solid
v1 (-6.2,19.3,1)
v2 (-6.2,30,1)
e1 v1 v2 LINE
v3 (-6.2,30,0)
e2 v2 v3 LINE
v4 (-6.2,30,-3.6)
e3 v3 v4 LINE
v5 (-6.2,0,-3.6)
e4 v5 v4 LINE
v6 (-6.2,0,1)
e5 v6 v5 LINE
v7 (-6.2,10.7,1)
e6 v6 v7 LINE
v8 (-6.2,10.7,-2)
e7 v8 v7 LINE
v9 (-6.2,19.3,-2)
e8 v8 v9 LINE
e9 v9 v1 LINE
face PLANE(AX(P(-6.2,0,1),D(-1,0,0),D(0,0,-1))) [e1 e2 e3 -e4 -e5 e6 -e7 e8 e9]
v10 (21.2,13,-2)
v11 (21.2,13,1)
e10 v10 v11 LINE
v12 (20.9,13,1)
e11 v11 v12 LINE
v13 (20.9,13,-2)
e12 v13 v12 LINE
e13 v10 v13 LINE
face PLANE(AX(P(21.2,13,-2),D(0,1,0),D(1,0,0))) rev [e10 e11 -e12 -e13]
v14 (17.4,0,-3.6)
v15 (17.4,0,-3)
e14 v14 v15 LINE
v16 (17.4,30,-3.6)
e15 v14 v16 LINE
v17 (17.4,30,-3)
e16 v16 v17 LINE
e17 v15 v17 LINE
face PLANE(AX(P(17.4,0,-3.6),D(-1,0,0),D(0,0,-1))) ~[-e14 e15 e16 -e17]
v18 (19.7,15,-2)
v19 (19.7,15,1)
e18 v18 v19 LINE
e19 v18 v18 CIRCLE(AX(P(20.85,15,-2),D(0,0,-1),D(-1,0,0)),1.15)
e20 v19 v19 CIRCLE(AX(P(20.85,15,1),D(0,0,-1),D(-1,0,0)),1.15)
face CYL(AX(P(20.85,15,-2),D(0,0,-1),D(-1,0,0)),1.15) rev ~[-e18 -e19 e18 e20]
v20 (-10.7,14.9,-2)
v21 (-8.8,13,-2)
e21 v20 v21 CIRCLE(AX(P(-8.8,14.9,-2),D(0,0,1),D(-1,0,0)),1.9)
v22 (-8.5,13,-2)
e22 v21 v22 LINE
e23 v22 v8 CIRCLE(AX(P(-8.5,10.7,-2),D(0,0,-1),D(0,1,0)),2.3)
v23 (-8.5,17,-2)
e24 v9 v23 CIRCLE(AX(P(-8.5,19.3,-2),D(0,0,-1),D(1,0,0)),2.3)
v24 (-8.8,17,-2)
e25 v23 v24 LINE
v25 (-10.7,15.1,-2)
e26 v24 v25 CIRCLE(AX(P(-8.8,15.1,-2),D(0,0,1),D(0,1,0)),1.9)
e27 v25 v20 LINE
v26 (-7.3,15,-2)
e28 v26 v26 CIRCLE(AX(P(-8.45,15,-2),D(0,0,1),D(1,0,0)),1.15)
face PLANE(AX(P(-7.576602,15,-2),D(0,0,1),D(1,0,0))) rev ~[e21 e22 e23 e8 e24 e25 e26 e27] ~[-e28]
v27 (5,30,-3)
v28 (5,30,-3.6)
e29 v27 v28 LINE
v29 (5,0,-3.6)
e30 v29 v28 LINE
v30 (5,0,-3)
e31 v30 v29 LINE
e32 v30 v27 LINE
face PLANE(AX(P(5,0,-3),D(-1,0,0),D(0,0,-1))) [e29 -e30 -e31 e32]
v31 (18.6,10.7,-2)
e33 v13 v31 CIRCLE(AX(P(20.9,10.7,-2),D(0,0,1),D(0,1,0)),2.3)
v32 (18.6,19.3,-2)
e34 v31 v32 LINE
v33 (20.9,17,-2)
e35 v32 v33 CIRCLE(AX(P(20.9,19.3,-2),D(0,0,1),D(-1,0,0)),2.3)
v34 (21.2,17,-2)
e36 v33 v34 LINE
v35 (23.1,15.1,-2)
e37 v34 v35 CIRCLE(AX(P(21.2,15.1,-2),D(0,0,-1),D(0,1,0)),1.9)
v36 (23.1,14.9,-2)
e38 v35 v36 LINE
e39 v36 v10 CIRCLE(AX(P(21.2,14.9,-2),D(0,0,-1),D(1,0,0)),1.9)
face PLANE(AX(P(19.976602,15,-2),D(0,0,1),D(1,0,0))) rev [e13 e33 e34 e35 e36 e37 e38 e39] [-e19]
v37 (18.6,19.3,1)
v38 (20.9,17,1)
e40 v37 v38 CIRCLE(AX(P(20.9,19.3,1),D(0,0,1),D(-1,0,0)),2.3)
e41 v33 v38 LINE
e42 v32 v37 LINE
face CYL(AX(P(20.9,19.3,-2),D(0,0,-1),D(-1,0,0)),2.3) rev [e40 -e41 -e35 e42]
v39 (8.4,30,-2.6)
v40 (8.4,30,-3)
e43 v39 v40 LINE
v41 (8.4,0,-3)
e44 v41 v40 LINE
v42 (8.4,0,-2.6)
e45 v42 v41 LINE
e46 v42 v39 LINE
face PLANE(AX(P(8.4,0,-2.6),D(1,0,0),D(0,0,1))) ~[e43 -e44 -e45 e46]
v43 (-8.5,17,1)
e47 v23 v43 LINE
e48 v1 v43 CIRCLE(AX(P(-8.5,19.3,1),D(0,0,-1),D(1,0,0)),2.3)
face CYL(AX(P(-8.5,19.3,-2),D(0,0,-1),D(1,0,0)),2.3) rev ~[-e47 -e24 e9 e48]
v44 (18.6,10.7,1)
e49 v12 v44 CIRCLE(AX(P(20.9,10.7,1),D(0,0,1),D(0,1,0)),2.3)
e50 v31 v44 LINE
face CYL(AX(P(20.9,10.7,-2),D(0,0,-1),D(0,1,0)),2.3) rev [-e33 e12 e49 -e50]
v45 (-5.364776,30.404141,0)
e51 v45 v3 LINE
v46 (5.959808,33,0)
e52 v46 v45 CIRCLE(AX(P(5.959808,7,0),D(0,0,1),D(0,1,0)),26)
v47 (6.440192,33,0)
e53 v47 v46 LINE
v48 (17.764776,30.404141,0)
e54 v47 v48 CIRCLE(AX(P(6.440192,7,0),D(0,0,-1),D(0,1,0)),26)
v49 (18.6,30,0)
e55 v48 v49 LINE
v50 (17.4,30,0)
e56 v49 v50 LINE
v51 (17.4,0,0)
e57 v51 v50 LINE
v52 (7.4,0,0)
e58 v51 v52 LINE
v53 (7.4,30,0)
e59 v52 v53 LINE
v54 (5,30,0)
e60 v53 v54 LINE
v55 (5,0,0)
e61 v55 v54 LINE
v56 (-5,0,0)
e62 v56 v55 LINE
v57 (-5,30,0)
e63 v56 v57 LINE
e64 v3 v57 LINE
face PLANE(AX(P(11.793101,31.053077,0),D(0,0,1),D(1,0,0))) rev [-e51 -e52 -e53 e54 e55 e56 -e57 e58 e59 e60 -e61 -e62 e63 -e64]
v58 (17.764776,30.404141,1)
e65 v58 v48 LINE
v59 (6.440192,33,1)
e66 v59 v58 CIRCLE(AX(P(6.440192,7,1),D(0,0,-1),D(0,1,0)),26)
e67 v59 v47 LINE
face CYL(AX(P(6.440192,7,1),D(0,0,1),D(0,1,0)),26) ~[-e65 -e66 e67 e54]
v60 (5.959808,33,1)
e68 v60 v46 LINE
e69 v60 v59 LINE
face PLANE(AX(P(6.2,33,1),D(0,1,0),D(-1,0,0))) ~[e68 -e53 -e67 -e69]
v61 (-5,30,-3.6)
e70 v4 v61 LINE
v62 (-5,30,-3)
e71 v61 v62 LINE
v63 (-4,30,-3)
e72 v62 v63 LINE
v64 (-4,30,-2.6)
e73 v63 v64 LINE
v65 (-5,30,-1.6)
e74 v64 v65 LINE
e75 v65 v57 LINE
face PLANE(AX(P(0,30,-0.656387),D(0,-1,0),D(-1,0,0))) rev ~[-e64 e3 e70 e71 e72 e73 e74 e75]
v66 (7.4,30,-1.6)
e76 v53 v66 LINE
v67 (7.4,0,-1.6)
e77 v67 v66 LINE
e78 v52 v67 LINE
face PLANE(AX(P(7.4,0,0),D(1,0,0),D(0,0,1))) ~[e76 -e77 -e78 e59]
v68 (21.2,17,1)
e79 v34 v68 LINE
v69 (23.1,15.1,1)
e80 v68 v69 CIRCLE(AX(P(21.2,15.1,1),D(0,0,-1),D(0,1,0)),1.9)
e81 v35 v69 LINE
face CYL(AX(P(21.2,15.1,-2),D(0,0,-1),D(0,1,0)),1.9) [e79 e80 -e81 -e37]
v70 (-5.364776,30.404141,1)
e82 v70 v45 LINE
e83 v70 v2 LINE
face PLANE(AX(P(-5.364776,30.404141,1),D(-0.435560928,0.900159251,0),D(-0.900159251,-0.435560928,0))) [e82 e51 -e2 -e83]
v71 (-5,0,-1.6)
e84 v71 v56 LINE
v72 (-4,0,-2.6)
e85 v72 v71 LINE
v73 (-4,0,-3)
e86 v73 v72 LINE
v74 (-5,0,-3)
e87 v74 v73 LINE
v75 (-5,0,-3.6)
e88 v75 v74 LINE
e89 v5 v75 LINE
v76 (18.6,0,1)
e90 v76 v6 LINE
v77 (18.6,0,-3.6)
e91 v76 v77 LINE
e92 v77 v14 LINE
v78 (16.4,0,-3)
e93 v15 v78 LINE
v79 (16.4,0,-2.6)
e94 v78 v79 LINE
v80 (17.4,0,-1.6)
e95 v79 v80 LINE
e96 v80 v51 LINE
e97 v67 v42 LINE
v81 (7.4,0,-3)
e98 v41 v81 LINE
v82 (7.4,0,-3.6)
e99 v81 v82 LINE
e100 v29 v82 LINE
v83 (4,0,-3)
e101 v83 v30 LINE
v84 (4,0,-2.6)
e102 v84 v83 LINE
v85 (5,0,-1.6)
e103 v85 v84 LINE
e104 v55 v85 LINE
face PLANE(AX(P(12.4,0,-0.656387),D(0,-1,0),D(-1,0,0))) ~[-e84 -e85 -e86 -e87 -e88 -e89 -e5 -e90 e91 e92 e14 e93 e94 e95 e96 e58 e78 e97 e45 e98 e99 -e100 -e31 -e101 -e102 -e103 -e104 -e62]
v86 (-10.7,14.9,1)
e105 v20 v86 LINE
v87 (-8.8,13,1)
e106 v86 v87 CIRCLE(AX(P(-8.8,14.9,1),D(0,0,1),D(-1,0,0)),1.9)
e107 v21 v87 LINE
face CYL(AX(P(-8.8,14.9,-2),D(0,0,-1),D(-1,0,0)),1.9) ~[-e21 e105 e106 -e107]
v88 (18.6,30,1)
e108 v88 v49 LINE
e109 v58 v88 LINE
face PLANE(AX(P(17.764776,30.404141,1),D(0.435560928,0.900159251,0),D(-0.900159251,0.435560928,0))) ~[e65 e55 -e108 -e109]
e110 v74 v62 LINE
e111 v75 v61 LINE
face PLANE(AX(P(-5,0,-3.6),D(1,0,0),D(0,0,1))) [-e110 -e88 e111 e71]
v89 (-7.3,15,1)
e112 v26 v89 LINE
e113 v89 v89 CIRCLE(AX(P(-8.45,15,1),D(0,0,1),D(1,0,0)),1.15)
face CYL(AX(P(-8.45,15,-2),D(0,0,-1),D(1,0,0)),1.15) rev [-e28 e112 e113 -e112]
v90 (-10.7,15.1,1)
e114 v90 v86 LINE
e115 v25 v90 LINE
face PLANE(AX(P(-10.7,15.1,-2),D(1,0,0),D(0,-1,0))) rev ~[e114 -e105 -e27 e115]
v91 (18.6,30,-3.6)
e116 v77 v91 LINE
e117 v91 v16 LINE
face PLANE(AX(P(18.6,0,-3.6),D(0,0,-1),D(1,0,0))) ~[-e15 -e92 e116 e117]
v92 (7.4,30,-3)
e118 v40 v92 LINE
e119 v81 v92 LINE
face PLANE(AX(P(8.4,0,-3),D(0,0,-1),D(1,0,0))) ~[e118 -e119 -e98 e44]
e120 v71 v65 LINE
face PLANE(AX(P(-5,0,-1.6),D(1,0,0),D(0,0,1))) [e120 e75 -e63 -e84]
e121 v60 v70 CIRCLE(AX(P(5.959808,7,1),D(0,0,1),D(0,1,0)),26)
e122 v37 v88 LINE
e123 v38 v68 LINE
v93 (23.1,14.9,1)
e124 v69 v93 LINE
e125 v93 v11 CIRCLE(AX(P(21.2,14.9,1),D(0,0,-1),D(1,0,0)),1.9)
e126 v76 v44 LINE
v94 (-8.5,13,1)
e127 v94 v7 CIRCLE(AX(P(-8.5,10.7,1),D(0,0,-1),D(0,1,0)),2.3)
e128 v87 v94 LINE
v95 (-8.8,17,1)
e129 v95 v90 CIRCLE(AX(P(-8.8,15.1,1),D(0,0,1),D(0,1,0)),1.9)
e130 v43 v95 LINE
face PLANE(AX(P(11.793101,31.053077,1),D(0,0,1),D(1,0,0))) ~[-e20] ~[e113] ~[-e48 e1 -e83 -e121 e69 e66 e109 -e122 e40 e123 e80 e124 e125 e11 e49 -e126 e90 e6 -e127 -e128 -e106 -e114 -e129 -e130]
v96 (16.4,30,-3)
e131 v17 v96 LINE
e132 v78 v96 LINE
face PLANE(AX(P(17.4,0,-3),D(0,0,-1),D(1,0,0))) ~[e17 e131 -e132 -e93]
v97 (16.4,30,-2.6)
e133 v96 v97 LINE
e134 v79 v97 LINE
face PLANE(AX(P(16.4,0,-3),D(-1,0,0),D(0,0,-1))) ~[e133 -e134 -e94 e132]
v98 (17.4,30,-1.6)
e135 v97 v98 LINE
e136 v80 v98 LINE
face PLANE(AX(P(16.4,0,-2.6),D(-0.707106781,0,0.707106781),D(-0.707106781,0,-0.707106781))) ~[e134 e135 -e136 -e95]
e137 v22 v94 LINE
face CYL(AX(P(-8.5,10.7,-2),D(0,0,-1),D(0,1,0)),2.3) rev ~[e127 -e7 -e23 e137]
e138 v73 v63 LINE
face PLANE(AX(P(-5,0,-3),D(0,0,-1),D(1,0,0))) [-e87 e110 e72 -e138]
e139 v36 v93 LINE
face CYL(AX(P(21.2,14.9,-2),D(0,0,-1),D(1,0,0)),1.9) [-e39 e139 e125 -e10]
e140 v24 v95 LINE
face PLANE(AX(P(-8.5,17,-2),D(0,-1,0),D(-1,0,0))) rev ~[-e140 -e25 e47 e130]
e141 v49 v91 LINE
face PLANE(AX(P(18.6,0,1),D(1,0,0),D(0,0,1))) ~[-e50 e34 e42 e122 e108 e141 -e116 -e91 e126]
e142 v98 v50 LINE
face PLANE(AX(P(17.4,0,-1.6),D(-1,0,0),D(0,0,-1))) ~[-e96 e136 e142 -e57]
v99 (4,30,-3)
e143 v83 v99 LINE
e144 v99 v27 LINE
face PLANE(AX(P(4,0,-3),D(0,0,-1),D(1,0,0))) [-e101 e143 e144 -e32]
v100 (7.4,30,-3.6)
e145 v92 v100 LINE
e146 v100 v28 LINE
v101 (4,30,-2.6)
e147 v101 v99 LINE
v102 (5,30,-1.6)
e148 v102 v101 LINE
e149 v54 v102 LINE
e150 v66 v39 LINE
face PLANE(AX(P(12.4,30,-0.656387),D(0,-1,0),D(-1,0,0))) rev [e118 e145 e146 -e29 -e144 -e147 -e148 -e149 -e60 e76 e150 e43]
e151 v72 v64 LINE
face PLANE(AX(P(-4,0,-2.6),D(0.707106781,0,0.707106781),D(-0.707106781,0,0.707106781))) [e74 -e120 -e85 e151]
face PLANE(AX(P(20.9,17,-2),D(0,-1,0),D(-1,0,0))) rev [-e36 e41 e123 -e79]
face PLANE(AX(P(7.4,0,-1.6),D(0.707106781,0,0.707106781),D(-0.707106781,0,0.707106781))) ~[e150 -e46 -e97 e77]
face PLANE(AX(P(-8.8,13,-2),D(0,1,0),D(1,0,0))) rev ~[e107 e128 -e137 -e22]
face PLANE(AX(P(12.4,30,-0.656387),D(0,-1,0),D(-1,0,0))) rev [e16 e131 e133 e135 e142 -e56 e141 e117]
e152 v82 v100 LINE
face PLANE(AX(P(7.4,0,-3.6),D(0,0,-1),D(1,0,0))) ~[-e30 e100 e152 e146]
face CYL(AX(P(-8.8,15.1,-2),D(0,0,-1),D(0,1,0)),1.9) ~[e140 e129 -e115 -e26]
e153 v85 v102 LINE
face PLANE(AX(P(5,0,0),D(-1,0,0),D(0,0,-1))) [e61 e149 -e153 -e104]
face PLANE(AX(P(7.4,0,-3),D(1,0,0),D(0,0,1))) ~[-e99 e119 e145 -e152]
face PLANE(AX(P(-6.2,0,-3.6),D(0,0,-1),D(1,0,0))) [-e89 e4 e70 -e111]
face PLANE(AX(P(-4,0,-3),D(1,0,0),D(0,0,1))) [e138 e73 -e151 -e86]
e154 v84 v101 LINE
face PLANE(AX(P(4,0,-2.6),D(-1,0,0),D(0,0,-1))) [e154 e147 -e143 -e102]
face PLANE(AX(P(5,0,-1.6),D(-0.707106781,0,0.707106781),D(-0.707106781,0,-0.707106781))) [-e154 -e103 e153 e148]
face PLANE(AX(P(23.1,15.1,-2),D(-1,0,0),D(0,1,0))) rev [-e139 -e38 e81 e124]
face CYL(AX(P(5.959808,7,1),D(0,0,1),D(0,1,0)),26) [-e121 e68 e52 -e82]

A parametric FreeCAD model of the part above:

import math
import FreeCAD as App
import Part
import Sketcher
from FreeCAD import Vector


def add_polygon(sketch, points):
    """Adds a closed chain of lines whose ends are joined by coincident constraints."""
    first, n = sketch.GeometryCount, len(points)
    for a, b in zip(points, points[1:] + points[:1]):
        sketch.addGeometry(Part.LineSegment(App.Vector(*a, 0), App.Vector(*b, 0)), False)
    for i in range(n):
        sketch.addConstraint(Sketcher.Constraint("Coincident", first + i, 2, first + (i + 1) % n, 1))

doc = App.newDocument("Part")
params = doc.addObject("Spreadsheet::Sheet", "Params")
for row, (alias, value) in enumerate([
    ("sketch1_width", "10 mm"),
    ("sketch1_width2", "1 mm"),
    ("sketch1_width3", "1.2 mm"),
    ("sketch1_height", "1.6 mm"),
    ("sketch1_height2", "0.4 mm"),
    ("pad1_length", "30 mm"),
    ("sketch2_diameter", "2.3 mm"),
    ("sketch2_radius", "2.3 mm"),
    ("sketch2_radius2", "1.9 mm"),
    ("sketch2_width", "0.3 mm"),
    ("sketch2_height", "8.6 mm"),
    ("pad2_length", "3 mm"),
    ("sketch3_radius", "26 mm"),
    ("sketch3_height", "3 mm"),
    ("sketch3_width", "12.4 mm"),
    ("pad3_length", "1 mm"),
], start=1):
    params.set(f"A{row}", alias)
    params.set(f"B{row}", "=" + value)
    params.setAlias(f"B{row}", alias)

body = doc.addObject("PartDesign::Body", "Body")

# Sketch on XZ plane
sketch1 = doc.addObject("Sketcher::SketchObject", "Sketch")
body.addObject(sketch1)
sketch1.AttachmentSupport = (doc.XZ_Plane, [""])
sketch1.MapMode = "FlatFace"
add_polygon(sketch1, [(5, 0), (-5, 0), (-5, -1.6), (-4, -2.6), (-4, -3), (-5, -3), (-5, -3.6), (-6.2, -3.6), (-6.2, 1), (6.2, 1), (6.2, -3.6), (5, -3.6), (5, -3), (4, -3), (4, -2.6), (5, -1.6)])  # lines 0-15
sketch1.addConstraint([
    Sketcher.Constraint("Horizontal", 0),
    Sketcher.Constraint("Vertical", 1),
    Sketcher.Constraint("Vertical", 3),
    Sketcher.Constraint("Horizontal", 4),
    Sketcher.Constraint("Vertical", 5),
    Sketcher.Constraint("Horizontal", 6),
    Sketcher.Constraint("Vertical", 7),
    Sketcher.Constraint("Horizontal", 8),
    Sketcher.Constraint("Vertical", 9),
    Sketcher.Constraint("Horizontal", 10),
    Sketcher.Constraint("Vertical", 11),
    Sketcher.Constraint("Horizontal", 12),
    Sketcher.Constraint("Vertical", 13),
    Sketcher.Constraint("Vertical", 15),
    Sketcher.Constraint("Symmetric", 0, 2, 15, 2, -1, 1),
    Sketcher.Constraint("Symmetric", 6, 2, 9, 2, -2),
    Sketcher.Constraint("Symmetric", 4, 2, 11, 2, -2),
    Sketcher.Constraint("Symmetric", 2, 2, 13, 2, -2),
    Sketcher.Constraint("Perpendicular", 2, 14),
    Sketcher.Constraint("Horizontal", 1, 2, 14, 2),
    Sketcher.Constraint("Vertical", 1, 2, 4, 2),
    Sketcher.Constraint("DistanceX", 0, 2, 0, 1, 10.0),
    Sketcher.Constraint("DistanceX", 4, 2, 4, 1, 1.0),
    Sketcher.Constraint("DistanceX", 6, 2, 6, 1, 1.2),
    Sketcher.Constraint("DistanceY", 1, 2, 1, 1, 1.6),
    Sketcher.Constraint("DistanceY", 3, 2, 3, 1, 0.4),
    Sketcher.Constraint("DistanceY", 5, 2, 5, 1, 0.6),
    Sketcher.Constraint("DistanceY", 7, 1, 7, 2, 4.6),
])
sketch1.setExpression("Constraints[37]", "Params.sketch1_width")
sketch1.setExpression("Constraints[38]", "Params.sketch1_width2")
sketch1.setExpression("Constraints[39]", "Params.sketch1_width3")
sketch1.setExpression("Constraints[40]", "Params.sketch1_height")
sketch1.setExpression("Constraints[41]", "Params.sketch1_height2")
pad1 = doc.addObject("PartDesign::Pad", "Pad")
body.addObject(pad1)
pad1.Profile = sketch1
pad1.setExpression("Length", "Params.pad1_length")
pad1.Reversed = True

# Sketch on XY plane
sketch2 = doc.addObject("Sketcher::SketchObject", "Sketch001")
body.addObject(sketch2)
sketch2.AttachmentSupport = (doc.XY_Plane, [""])
sketch2.MapMode = "FlatFace"
sketch2.AttachmentOffset = App.Placement(Vector(0, 0, -2), App.Rotation())
sketch2.addGeometry([
    Part.LineSegment(Vector(-8.8, 13, 0), Vector(-8.5, 13, 0)),  # 0
    Part.ArcOfCircle(Part.Circle(Vector(-8.5, 10.7, 0), Vector(0, 0, 1), 2.3), math.radians(0), math.radians(90)),  # 1
    Part.LineSegment(Vector(-6.2, 10.7, 0), Vector(-6.2, 19.3, 0)),  # 2
    Part.ArcOfCircle(Part.Circle(Vector(-8.5, 19.3, 0), Vector(0, 0, 1), 2.3), math.radians(-90), math.radians(0)),  # 3
    Part.LineSegment(Vector(-8.5, 17, 0), Vector(-8.8, 17, 0)),  # 4
    Part.ArcOfCircle(Part.Circle(Vector(-8.8, 15.1, 0), Vector(0, 0, 1), 1.9), math.radians(90), math.radians(180)),  # 5
    Part.LineSegment(Vector(-10.7, 15.1, 0), Vector(-10.7, 14.9, 0)),  # 6
    Part.ArcOfCircle(Part.Circle(Vector(-8.8, 14.9, 0), Vector(0, 0, 1), 1.9), math.radians(-180), math.radians(-90)),  # 7
    Part.Circle(Vector(-8.45, 15, 0), Vector(0, 0, 1), 1.15),  # 8
], False)
sketch2.addConstraint([
    Sketcher.Constraint("Tangent", 0, 2, 1, 2),
    Sketcher.Constraint("Tangent", 1, 1, 2, 1),
    Sketcher.Constraint("Tangent", 2, 2, 3, 2),
    Sketcher.Constraint("Tangent", 3, 1, 4, 1),
    Sketcher.Constraint("Tangent", 4, 2, 5, 1),
    Sketcher.Constraint("Tangent", 5, 2, 6, 1),
    Sketcher.Constraint("Tangent", 6, 2, 7, 1),
    Sketcher.Constraint("Tangent", 7, 2, 0, 1),
    Sketcher.Constraint("Horizontal", 0),
    Sketcher.Constraint("Vertical", 2),
    Sketcher.Constraint("Horizontal", 4),
    Sketcher.Constraint("Vertical", 6),
    Sketcher.Constraint("Equal", 1, 3),
    Sketcher.Constraint("Equal", 5, 7),
    Sketcher.Constraint("Diameter", 8, 2.3),
    Sketcher.Constraint("Radius", 1, 2.3),
    Sketcher.Constraint("Radius", 5, 1.9),
    Sketcher.Constraint("DistanceX", 0, 1, 0, 2, 0.3),
    Sketcher.Constraint("DistanceY", 2, 1, 2, 2, 8.6),
    Sketcher.Constraint("DistanceY", -1, 1, 8, 3, 15.0),
    Sketcher.Constraint("DistanceY", -1, 1, 0, 2, 13.0),
    Sketcher.Constraint("DistanceX", 1, 3, -1, 1, 8.5),
    Sketcher.Constraint("DistanceX", 8, 3, -1, 1, 8.45),
])
sketch2.setExpression("Constraints[14]", "Params.sketch2_diameter")
sketch2.setExpression("Constraints[15]", "Params.sketch2_radius")
sketch2.setExpression("Constraints[16]", "Params.sketch2_radius2")
sketch2.setExpression("Constraints[17]", "Params.sketch2_width")
sketch2.setExpression("Constraints[18]", "Params.sketch2_height")
pad2 = doc.addObject("PartDesign::Pad", "Pad001")
body.addObject(pad2)
pad2.Profile = sketch2
pad2.setExpression("Length", "Params.pad2_length")

# Sketch on XY plane
sketch3 = doc.addObject("Sketcher::SketchObject", "Sketch002")
body.addObject(sketch3)
sketch3.AttachmentSupport = (doc.XY_Plane, [""])
sketch3.MapMode = "FlatFace"
sketch3.AttachmentOffset = App.Placement(Vector(0, 0, 1), App.Rotation())
sketch3.addGeometry([
    Part.LineSegment(Vector(-6.2, 30, 0), Vector(6.2, 30, 0)),  # 0
    Part.LineSegment(Vector(6.2, 30, 0), Vector(6.2, 33, 0)),  # 1
    Part.LineSegment(Vector(6.2, 33, 0), Vector(5.96, 33, 0)),  # 2
    Part.ArcOfCircle(Part.Circle(Vector(5.96, 7, 0), Vector(0, 0, 1), 26), math.radians(90), math.radians(116)),  # 3
    Part.LineSegment(Vector(-5.36, 30.4, 0), Vector(-6.2, 30, 0)),  # 4
], False)
sketch3.addConstraint([
    Sketcher.Constraint("Coincident", 0, 2, 1, 1),
    Sketcher.Constraint("Coincident", 1, 2, 2, 1),
    Sketcher.Constraint("Tangent", 2, 2, 3, 1),
    Sketcher.Constraint("Tangent", 3, 2, 4, 1),
    Sketcher.Constraint("Coincident", 4, 2, 0, 1),
    Sketcher.Constraint("Horizontal", 0),
    Sketcher.Constraint("Vertical", 1),
    Sketcher.Constraint("Horizontal", 2),
    Sketcher.Constraint("Radius", 3, 26.0),
    Sketcher.Constraint("DistanceY", 1, 1, 1, 2, 3.0),
    Sketcher.Constraint("DistanceX", 0, 1, 0, 2, 12.4),
    Sketcher.Constraint("DistanceY", -1, 1, 3, 3, 7.0),
    Sketcher.Constraint("DistanceX", -1, 1, 0, 2, 6.2),
    Sketcher.Constraint("DistanceX", 2, 2, 2, 1, 0.240192),
])
sketch3.setExpression("Constraints[8]", "Params.sketch3_radius")
sketch3.setExpression("Constraints[9]", "Params.sketch3_height")
sketch3.setExpression("Constraints[10]", "Params.sketch3_width")
pad3 = doc.addObject("PartDesign::Pad", "Pad002")
body.addObject(pad3)
pad3.Profile = sketch3
pad3.setExpression("Length", "Params.pad3_length")
pad3.Reversed = True
doc.recompute()

datumplane = doc.addObject("PartDesign::Plane", "DatumPlane")
body.addObject(datumplane)
datumplane.AttachmentSupport = (doc.YZ_Plane, [""])
datumplane.MapMode = "FlatFace"
datumplane.AttachmentOffset = App.Placement(Vector(0, 0, 6.2), App.Rotation())
mirrored = doc.addObject("PartDesign::Mirrored", "Mirrored")
body.addObject(mirrored)
mirrored.Originals = [pad1, pad2, pad3]
mirrored.MirrorPlane = (datumplane, [""])
body.Tip = mirrored

doc.recompute()
